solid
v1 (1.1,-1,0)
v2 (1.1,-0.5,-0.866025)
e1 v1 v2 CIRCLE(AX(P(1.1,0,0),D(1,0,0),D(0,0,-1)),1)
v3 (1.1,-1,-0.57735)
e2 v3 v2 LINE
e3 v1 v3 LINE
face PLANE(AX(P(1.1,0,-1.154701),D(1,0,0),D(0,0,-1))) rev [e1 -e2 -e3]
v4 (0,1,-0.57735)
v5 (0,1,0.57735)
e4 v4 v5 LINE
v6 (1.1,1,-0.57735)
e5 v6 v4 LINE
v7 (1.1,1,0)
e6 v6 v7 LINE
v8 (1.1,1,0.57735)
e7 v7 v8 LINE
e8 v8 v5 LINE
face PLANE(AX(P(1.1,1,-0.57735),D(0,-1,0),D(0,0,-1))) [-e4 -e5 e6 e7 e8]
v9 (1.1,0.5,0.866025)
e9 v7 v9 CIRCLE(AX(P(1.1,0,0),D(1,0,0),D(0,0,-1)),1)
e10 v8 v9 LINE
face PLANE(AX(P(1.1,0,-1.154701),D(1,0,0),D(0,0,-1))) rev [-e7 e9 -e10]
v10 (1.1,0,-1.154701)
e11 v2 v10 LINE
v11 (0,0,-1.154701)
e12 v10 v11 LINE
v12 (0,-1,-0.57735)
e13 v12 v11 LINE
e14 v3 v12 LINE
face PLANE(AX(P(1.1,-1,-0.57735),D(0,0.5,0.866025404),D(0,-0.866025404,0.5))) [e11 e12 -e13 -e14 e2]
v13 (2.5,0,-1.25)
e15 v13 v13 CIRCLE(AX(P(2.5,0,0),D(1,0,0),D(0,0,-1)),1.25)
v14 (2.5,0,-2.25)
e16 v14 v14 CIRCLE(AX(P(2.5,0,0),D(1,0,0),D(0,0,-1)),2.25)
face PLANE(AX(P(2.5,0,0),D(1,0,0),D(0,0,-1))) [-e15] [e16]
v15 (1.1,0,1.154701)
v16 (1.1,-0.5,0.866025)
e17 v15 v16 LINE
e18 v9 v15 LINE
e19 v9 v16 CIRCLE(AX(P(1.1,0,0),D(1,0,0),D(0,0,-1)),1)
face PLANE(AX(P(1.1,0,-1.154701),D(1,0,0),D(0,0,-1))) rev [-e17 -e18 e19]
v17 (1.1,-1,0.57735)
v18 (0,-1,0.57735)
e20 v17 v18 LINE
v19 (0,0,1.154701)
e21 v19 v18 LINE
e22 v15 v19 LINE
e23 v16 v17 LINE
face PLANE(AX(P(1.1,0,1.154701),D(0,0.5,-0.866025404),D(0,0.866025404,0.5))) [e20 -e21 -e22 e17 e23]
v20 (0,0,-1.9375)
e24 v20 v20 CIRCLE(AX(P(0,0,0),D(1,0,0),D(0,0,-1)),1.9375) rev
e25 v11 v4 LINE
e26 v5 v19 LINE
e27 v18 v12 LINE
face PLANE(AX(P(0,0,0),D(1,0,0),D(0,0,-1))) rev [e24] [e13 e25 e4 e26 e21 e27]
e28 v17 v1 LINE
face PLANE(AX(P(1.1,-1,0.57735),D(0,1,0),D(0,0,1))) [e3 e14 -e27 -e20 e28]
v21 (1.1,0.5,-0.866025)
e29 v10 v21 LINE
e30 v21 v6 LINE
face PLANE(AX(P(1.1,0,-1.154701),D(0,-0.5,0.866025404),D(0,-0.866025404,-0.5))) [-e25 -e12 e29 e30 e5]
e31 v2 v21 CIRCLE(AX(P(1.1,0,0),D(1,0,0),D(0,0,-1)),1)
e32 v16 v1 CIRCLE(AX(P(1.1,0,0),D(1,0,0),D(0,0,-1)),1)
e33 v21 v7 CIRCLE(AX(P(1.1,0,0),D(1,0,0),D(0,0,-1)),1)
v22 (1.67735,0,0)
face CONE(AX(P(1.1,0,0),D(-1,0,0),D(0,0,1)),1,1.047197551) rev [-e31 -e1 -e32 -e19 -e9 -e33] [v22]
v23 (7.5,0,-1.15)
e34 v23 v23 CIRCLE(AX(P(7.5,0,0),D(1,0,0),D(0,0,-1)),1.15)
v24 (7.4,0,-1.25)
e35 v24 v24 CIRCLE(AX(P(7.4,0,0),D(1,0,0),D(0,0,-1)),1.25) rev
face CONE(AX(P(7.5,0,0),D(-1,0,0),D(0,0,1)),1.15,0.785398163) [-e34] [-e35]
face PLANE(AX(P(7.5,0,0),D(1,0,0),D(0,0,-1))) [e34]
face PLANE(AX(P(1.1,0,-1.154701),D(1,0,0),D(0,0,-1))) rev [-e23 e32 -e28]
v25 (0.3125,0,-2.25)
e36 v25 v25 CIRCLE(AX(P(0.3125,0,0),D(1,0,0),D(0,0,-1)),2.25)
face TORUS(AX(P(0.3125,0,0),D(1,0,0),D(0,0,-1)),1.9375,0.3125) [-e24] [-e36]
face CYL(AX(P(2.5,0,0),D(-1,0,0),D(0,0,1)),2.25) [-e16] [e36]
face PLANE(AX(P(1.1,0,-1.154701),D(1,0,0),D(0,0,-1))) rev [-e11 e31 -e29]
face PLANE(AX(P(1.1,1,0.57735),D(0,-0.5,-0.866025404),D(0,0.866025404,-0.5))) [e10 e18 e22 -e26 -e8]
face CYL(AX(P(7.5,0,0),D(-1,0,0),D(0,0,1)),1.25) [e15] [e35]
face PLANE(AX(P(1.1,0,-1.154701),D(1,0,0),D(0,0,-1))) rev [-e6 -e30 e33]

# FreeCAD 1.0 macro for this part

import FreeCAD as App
import Part
import Sketcher
Q = App.Units.Quantity


def edges_at(feature, points):
    """Names of the edges that pass closest to the given points."""
    edges = feature.Shape.Edges
    near = lambda p: min(range(len(edges)), key=lambda i: edges[i].distToShape(Part.Vertex(*p))[0])
    return sorted({f"Edge{near(p) + 1}" for p in points})

doc = App.newDocument("Part")
body = doc.addObject("PartDesign::Body", "Body")

# Sketch on YZ plane
sketch1 = doc.addObject("Sketcher::SketchObject", "Sketch")
body.addObject(sketch1)
sketch1.AttachmentSupport = (doc.YZ_Plane, [""])
sketch1.MapMode = "FlatFace"
sketch1.addGeometry(Part.Circle(App.Vector(0, 0, 0), App.Vector(0, 0, 1), 2.25), False)
sketch1.addConstraint([
    Sketcher.Constraint("Coincident", 0, 3, -1, 1),
    Sketcher.Constraint("Diameter", 0, Q("4.5 mm")),
])
pad1 = doc.addObject("PartDesign::Pad", "Pad")
body.addObject(pad1)
pad1.Profile = sketch1
pad1.Length = 2.5

# Sketch on YZ plane
sketch2 = doc.addObject("Sketcher::SketchObject", "Sketch001")
body.addObject(sketch2)
sketch2.AttachmentSupport = (doc.YZ_Plane, [""])
sketch2.MapMode = "FlatFace"
sketch2.AttachmentOffset = App.Placement(App.Vector(0, 0, 2.5), App.Rotation())
sketch2.addGeometry(Part.Circle(App.Vector(0, 0, 0), App.Vector(0, 0, 1), 1.25), False)
sketch2.addConstraint([
    Sketcher.Constraint("Coincident", 0, 3, -1, 1),
    Sketcher.Constraint("Diameter", 0, Q("2.5 mm")),
])
pad2 = doc.addObject("PartDesign::Pad", "Pad001")
body.addObject(pad2)
pad2.Profile = sketch2
pad2.Length = 5

# Sketch on YZ plane
sketch3 = doc.addObject("Sketcher::SketchObject", "Sketch002")
body.addObject(sketch3)
sketch3.AttachmentSupport = (doc.YZ_Plane, [""])
sketch3.MapMode = "FlatFace"
sketch3.addGeometry([
    Part.LineSegment(App.Vector(0, -1.154701, 0), App.Vector(1, -0.57735, 0)),  # 0
    Part.LineSegment(App.Vector(1, -0.57735, 0), App.Vector(1, 0.57735, 0)),  # 1
    Part.LineSegment(App.Vector(1, 0.57735, 0), App.Vector(0, 1.154701, 0)),  # 2
    Part.LineSegment(App.Vector(0, 1.154701, 0), App.Vector(-1, 0.57735, 0)),  # 3
    Part.LineSegment(App.Vector(-1, 0.57735, 0), App.Vector(-1, -0.57735, 0)),  # 4
    Part.LineSegment(App.Vector(-1, -0.57735, 0), App.Vector(0, -1.154701, 0)),  # 5
], False)
sketch3.addConstraint([
    Sketcher.Constraint("Coincident", 0, 2, 1, 1),
    Sketcher.Constraint("Coincident", 1, 2, 2, 1),
    Sketcher.Constraint("Coincident", 2, 2, 3, 1),
    Sketcher.Constraint("Coincident", 3, 2, 4, 1),
    Sketcher.Constraint("Coincident", 4, 2, 5, 1),
    Sketcher.Constraint("Coincident", 5, 2, 0, 1),
    Sketcher.Constraint("Vertical", 1),
    Sketcher.Constraint("Vertical", 4),
    Sketcher.Constraint("Symmetric", 0, 2, 3, 2, -1, 1),
    Sketcher.Constraint("Symmetric", 2, 2, 5, 2, -1, 1),
    Sketcher.Constraint("PointOnObject", 2, 2, -2),
    Sketcher.Constraint("Parallel", 2, 5),
    Sketcher.Constraint("Horizontal", 1, 2, 3, 2),
    Sketcher.Constraint("Angle", 0, Q("30 deg")),
    Sketcher.Constraint("DistanceX", -1, 1, 0, 2, Q("1 mm")),
    Sketcher.Constraint("DistanceY", 1, 1, 1, 2, Q("1.154701 mm")),
])
pocket1 = doc.addObject("PartDesign::Pocket", "Pocket")
body.addObject(pocket1)
pocket1.Profile = sketch3
pocket1.Length = 1.1
pocket1.Reversed = True

# Sketch on XY plane
sketch4 = doc.addObject("Sketcher::SketchObject", "Sketch003")
body.addObject(sketch4)
sketch4.AttachmentSupport = (doc.XY_Plane, [""])
sketch4.MapMode = "FlatFace"
sketch4.addGeometry([
    Part.LineSegment(App.Vector(1.1, -1, 0), App.Vector(1.67735, 0, 0)),
    Part.LineSegment(App.Vector(1.67735, 0, 0), App.Vector(1.1, 0, 0)),
    Part.LineSegment(App.Vector(1.1, 0, 0), App.Vector(1.1, -1, 0)),
], False)
sketch4.addConstraint([
    Sketcher.Constraint("Coincident", 0, 2, 1, 1),
    Sketcher.Constraint("Coincident", 1, 2, 2, 1),
    Sketcher.Constraint("Coincident", 2, 2, 0, 1),
    Sketcher.Constraint("Horizontal", 1),
    Sketcher.Constraint("Vertical", 2),
    Sketcher.Constraint("PointOnObject", 0, 2, -1),
    Sketcher.Constraint("DistanceY", 2, 2, 2, 1, Q("1 mm")),
    Sketcher.Constraint("Angle", 0, Q("60 deg")),
    Sketcher.Constraint("DistanceX", -1, 1, 1, 2, Q("1.1 mm")),
])
groove = doc.addObject("PartDesign::Groove", "Groove")
body.addObject(groove)
groove.Profile = sketch4
groove.ReferenceAxis = (sketch4, ["H_Axis"])
groove.Angle = 360
doc.recompute()

fillet = doc.addObject("PartDesign::Fillet", "Fillet")
body.addObject(fillet)
fillet.Base = (groove, edges_at(groove, [(0, 0, 2.25)]))
fillet.Radius = 0.3125
doc.recompute()

chamfer = doc.addObject("PartDesign::Chamfer", "Chamfer")
body.addObject(chamfer)
chamfer.Base = (fillet, edges_at(fillet, [(7.5, 0, 1.25)]))
chamfer.Size = 0.1

doc.recompute()
